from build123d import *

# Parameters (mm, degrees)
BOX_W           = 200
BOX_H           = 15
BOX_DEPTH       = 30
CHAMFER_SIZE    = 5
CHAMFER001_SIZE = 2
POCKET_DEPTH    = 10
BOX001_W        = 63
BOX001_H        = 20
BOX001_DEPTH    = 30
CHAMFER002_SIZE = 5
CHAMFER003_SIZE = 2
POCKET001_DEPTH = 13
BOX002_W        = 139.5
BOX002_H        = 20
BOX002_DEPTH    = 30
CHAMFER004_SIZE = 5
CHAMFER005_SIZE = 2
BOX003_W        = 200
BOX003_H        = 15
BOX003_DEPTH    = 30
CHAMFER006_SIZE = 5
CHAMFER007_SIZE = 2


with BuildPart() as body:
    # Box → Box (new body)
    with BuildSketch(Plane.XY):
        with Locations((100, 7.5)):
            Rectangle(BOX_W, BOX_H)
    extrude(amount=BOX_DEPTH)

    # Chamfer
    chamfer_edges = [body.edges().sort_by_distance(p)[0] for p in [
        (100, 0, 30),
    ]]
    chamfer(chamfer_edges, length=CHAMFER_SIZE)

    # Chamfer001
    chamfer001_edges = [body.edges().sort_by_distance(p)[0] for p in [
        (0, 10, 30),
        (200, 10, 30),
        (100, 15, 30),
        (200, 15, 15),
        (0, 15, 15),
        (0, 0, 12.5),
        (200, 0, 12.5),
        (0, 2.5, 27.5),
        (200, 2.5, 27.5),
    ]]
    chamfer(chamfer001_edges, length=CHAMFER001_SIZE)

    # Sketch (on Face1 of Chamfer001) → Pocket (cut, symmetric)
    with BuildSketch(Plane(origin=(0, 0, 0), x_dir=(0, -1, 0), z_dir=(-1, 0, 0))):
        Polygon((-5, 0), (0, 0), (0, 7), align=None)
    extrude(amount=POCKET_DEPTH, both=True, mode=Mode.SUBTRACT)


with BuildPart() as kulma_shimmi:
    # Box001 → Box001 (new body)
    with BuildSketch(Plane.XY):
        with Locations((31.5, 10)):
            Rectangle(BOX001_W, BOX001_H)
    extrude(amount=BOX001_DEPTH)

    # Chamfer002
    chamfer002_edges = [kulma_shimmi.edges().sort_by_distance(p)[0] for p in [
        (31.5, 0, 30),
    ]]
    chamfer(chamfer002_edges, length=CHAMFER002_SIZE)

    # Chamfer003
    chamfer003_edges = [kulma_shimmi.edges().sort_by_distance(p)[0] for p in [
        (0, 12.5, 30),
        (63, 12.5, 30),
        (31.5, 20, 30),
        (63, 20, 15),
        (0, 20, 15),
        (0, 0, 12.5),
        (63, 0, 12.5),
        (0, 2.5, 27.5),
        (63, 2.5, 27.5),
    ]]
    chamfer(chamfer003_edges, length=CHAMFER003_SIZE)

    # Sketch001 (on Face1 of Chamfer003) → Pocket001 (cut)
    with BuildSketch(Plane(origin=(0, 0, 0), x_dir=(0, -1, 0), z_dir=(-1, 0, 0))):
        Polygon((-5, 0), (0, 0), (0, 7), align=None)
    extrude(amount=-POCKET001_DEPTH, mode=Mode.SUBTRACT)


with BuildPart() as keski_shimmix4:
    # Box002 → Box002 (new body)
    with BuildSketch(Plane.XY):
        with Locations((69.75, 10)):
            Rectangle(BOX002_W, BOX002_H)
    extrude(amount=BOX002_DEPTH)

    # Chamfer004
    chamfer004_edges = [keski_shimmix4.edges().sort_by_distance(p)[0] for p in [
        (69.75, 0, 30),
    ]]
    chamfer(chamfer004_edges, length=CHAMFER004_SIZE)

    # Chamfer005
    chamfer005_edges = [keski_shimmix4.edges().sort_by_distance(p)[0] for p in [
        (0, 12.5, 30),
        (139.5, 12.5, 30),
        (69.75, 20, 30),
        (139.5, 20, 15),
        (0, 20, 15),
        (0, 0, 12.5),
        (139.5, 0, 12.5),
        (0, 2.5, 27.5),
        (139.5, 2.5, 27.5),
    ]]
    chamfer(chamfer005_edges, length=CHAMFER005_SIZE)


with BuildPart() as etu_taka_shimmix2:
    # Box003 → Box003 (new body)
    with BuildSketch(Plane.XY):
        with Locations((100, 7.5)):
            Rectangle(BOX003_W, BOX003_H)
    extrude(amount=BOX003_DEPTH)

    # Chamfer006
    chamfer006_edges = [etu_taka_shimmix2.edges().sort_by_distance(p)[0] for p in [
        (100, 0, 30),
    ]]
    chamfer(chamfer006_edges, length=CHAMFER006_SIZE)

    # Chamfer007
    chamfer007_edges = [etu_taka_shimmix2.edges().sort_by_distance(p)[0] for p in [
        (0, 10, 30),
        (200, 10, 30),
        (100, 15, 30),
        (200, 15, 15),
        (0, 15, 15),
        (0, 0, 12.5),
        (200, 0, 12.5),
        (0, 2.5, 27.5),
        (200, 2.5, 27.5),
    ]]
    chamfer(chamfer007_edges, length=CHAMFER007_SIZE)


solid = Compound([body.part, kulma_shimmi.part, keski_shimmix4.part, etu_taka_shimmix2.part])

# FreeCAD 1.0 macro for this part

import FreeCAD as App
import Part
import Sketcher
Q = App.Units.Quantity


def edges_at(feature, points):
    """Names of the edges that pass closest to the given points."""
    edges = feature.Shape.Edges
    near = lambda p: min(range(len(edges)), key=lambda i: edges[i].distToShape(Part.Vertex(*p))[0])
    return sorted({f"Edge{near(p) + 1}" for p in points})


def add_polygon(sketch, points):
    """Adds a closed chain of lines whose ends are joined by coincident constraints."""
    first, n = sketch.GeometryCount, len(points)
    for a, b in zip(points, points[1:] + points[:1]):
        sketch.addGeometry(Part.LineSegment(App.Vector(*a, 0), App.Vector(*b, 0)), False)
    for i in range(n):
        sketch.addConstraint(Sketcher.Constraint("Coincident", first + i, 2, first + (i + 1) % n, 1))

doc = App.newDocument("Part")
params = doc.addObject("Spreadsheet::Sheet", "Params")
for row, (alias, value) in enumerate([
    ("sketch1_width", "200 mm"),
    ("sketch1_height", "15 mm"),
    ("pad1_length", "30 mm"),
    ("chamfer_size", "5 mm"),
    ("chamfer2_size", "2 mm"),
    ("sketch2_width", "5 mm"),
    ("sketch2_height", "7 mm"),
    ("pocket1_length", "20 mm"),
    ("sketch3_width", "63 mm"),
    ("sketch3_height", "20 mm"),
    ("pad2_length", "30 mm"),
    ("chamfer3_size", "5 mm"),
    ("chamfer4_size", "2 mm"),
    ("sketch4_width", "5 mm"),
    ("sketch4_height", "7 mm"),
    ("pocket2_length", "13 mm"),
    ("sketch5_height", "20 mm"),
    ("sketch5_width", "139.5 mm"),
    ("pad3_length", "30 mm"),
    ("chamfer5_size", "5 mm"),
    ("chamfer6_size", "2 mm"),
    ("sketch6_width", "200 mm"),
    ("sketch6_height", "15 mm"),
    ("pad4_length", "30 mm"),
    ("chamfer7_size", "5 mm"),
    ("chamfer8_size", "2 mm"),
], start=1):
    params.set(f"A{row}", alias)
    params.set(f"B{row}", "=" + value)
    params.setAlias(f"B{row}", alias)

body = doc.addObject("PartDesign::Body", "Body")

# Sketch on XY plane
sketch1 = body.newObject("Sketcher::SketchObject", "Sketch")
sketch1.AttachmentSupport = (doc.getObject("XY_Plane"), [""])
sketch1.MapMode = "FlatFace"
add_polygon(sketch1, [(0, 15), (0, 0), (200, 0), (200, 15)])  # lines 0-3
sketch1.addConstraint(Sketcher.Constraint("Vertical", 0))
sketch1.addConstraint(Sketcher.Constraint("Horizontal", 1))
sketch1.addConstraint(Sketcher.Constraint("Vertical", 2))
sketch1.addConstraint(Sketcher.Constraint("Horizontal", 3))
sketch1.addConstraint(Sketcher.Constraint("Coincident", 0, 2, -1, 1))
sketch1.addConstraint(Sketcher.Constraint("DistanceX", 1, 1, 1, 2, Q("200 mm")))
sketch1.addConstraint(Sketcher.Constraint("DistanceY", 0, 2, 0, 1, Q("15 mm")))
sketch1.setExpression("Constraints[9]", "Params.sketch1_width")
sketch1.setExpression("Constraints[10]", "Params.sketch1_height")
pad1 = body.newObject("PartDesign::Pad", "Pad")
pad1.Profile = sketch1
pad1.setExpression("Length", "Params.pad1_length")
doc.recompute()

chamfer = body.newObject("PartDesign::Chamfer", "Chamfer")
chamfer.Base = (pad1, edges_at(pad1, [(100, 0, 30)]))
chamfer.setExpression("Size", "Params.chamfer_size")
doc.recompute()

chamfer2 = body.newObject("PartDesign::Chamfer", "Chamfer001")
chamfer2.Base = (chamfer, edges_at(chamfer, [
    (0, 10, 30),
    (200, 10, 30),
    (100, 15, 30),
    (200, 15, 15),
    (0, 15, 15),
    (0, 0, 12.5),
    (200, 0, 12.5),
    (0, 2.5, 27.5),
    (200, 2.5, 27.5),
]))
chamfer2.setExpression("Size", "Params.chamfer2_size")

# Sketch on YZ plane
sketch2 = body.newObject("Sketcher::SketchObject", "Sketch001")
sketch2.AttachmentSupport = (doc.getObject("YZ_Plane"), [""])
sketch2.MapMode = "FlatFace"
add_polygon(sketch2, [(5, 0), (0, 0), (0, 7)])  # lines 0-2
sketch2.addConstraint(Sketcher.Constraint("Horizontal", 0))
sketch2.addConstraint(Sketcher.Constraint("Vertical", 1))
sketch2.addConstraint(Sketcher.Constraint("Coincident", 0, 2, -1, 1))
sketch2.addConstraint(Sketcher.Constraint("DistanceX", 0, 2, 0, 1, Q("5 mm")))
sketch2.addConstraint(Sketcher.Constraint("DistanceY", 1, 1, 1, 2, Q("7 mm")))
sketch2.setExpression("Constraints[6]", "Params.sketch2_width")
sketch2.setExpression("Constraints[7]", "Params.sketch2_height")
pocket1 = body.newObject("PartDesign::Pocket", "Pocket")
pocket1.Profile = sketch2
pocket1.setExpression("Length", "Params.pocket1_length")
pocket1.Midplane = True
body2 = doc.addObject("PartDesign::Body", "Body001")

# Sketch on XY plane
sketch3 = body2.newObject("Sketcher::SketchObject", "Sketch002")
sketch3.AttachmentSupport = (doc.getObject("XY_Plane001"), [""])
sketch3.MapMode = "FlatFace"
add_polygon(sketch3, [(0, 20), (0, 0), (63, 0), (63, 20)])  # lines 0-3
sketch3.addConstraint(Sketcher.Constraint("Vertical", 0))
sketch3.addConstraint(Sketcher.Constraint("Horizontal", 1))
sketch3.addConstraint(Sketcher.Constraint("Vertical", 2))
sketch3.addConstraint(Sketcher.Constraint("Horizontal", 3))
sketch3.addConstraint(Sketcher.Constraint("Coincident", 0, 2, -1, 1))
sketch3.addConstraint(Sketcher.Constraint("DistanceX", 1, 1, 1, 2, Q("63 mm")))
sketch3.addConstraint(Sketcher.Constraint("DistanceY", 0, 2, 0, 1, Q("20 mm")))
sketch3.setExpression("Constraints[9]", "Params.sketch3_width")
sketch3.setExpression("Constraints[10]", "Params.sketch3_height")
pad2 = body2.newObject("PartDesign::Pad", "Pad001")
pad2.Profile = sketch3
pad2.setExpression("Length", "Params.pad2_length")
doc.recompute()

chamfer3 = body2.newObject("PartDesign::Chamfer", "Chamfer002")
chamfer3.Base = (pad2, edges_at(pad2, [(31.5, 0, 30)]))
chamfer3.setExpression("Size", "Params.chamfer3_size")
doc.recompute()

chamfer4 = body2.newObject("PartDesign::Chamfer", "Chamfer003")
chamfer4.Base = (chamfer3, edges_at(chamfer3, [
    (0, 12.5, 30),
    (63, 12.5, 30),
    (31.5, 20, 30),
    (63, 20, 15),
    (0, 20, 15),
    (0, 0, 12.5),
    (63, 0, 12.5),
    (0, 2.5, 27.5),
    (63, 2.5, 27.5),
]))
chamfer4.setExpression("Size", "Params.chamfer4_size")

# Sketch on YZ plane
sketch4 = body2.newObject("Sketcher::SketchObject", "Sketch003")
sketch4.AttachmentSupport = (doc.getObject("YZ_Plane001"), [""])
sketch4.MapMode = "FlatFace"
add_polygon(sketch4, [(5, 0), (0, 0), (0, 7)])  # lines 0-2
sketch4.addConstraint(Sketcher.Constraint("Horizontal", 0))
sketch4.addConstraint(Sketcher.Constraint("Vertical", 1))
sketch4.addConstraint(Sketcher.Constraint("Coincident", 0, 2, -1, 1))
sketch4.addConstraint(Sketcher.Constraint("DistanceX", 0, 2, 0, 1, Q("5 mm")))
sketch4.addConstraint(Sketcher.Constraint("DistanceY", 1, 1, 1, 2, Q("7 mm")))
sketch4.setExpression("Constraints[6]", "Params.sketch4_width")
sketch4.setExpression("Constraints[7]", "Params.sketch4_height")
pocket2 = body2.newObject("PartDesign::Pocket", "Pocket001")
pocket2.Profile = sketch4
pocket2.setExpression("Length", "Params.pocket2_length")
pocket2.Reversed = True
body3 = doc.addObject("PartDesign::Body", "Body002")

# Sketch on XY plane
sketch5 = body3.newObject("Sketcher::SketchObject", "Sketch004")
sketch5.AttachmentSupport = (doc.getObject("XY_Plane002"), [""])
sketch5.MapMode = "FlatFace"
add_polygon(sketch5, [(0, 20), (0, 0), (139.5, 0), (139.5, 20)])  # lines 0-3
sketch5.addConstraint(Sketcher.Constraint("Vertical", 0))
sketch5.addConstraint(Sketcher.Constraint("Horizontal", 1))
sketch5.addConstraint(Sketcher.Constraint("Vertical", 2))
sketch5.addConstraint(Sketcher.Constraint("Horizontal", 3))
sketch5.addConstraint(Sketcher.Constraint("Coincident", 0, 2, -1, 1))
sketch5.addConstraint(Sketcher.Constraint("DistanceY", 0, 2, 0, 1, Q("20 mm")))
sketch5.addConstraint(Sketcher.Constraint("DistanceX", 1, 1, 1, 2, Q("139.5 mm")))
sketch5.setExpression("Constraints[9]", "Params.sketch5_height")
sketch5.setExpression("Constraints[10]", "Params.sketch5_width")
pad3 = body3.newObject("PartDesign::Pad", "Pad002")
pad3.Profile = sketch5
pad3.setExpression("Length", "Params.pad3_length")
doc.recompute()

chamfer5 = body3.newObject("PartDesign::Chamfer", "Chamfer004")
chamfer5.Base = (pad3, edges_at(pad3, [(69.75, 0, 30)]))
chamfer5.setExpression("Size", "Params.chamfer5_size")
doc.recompute()

chamfer6 = body3.newObject("PartDesign::Chamfer", "Chamfer005")
chamfer6.Base = (chamfer5, edges_at(chamfer5, [
    (0, 12.5, 30),
    (139.5, 12.5, 30),
    (69.75, 20, 30),
    (139.5, 20, 15),
    (0, 20, 15),
    (0, 0, 12.5),
    (139.5, 0, 12.5),
    (0, 2.5, 27.5),
    (139.5, 2.5, 27.5),
]))
chamfer6.setExpression("Size", "Params.chamfer6_size")
body4 = doc.addObject("PartDesign::Body", "Body003")

# Sketch on XY plane
sketch6 = body4.newObject("Sketcher::SketchObject", "Sketch005")
sketch6.AttachmentSupport = (doc.getObject("XY_Plane003"), [""])
sketch6.MapMode = "FlatFace"
add_polygon(sketch6, [(0, 15), (0, 0), (200, 0), (200, 15)])  # lines 0-3
sketch6.addConstraint(Sketcher.Constraint("Vertical", 0))
sketch6.addConstraint(Sketcher.Constraint("Horizontal", 1))
sketch6.addConstraint(Sketcher.Constraint("Vertical", 2))
sketch6.addConstraint(Sketcher.Constraint("Horizontal", 3))
sketch6.addConstraint(Sketcher.Constraint("Coincident", 0, 2, -1, 1))
sketch6.addConstraint(Sketcher.Constraint("DistanceX", 1, 1, 1, 2, Q("200 mm")))
sketch6.addConstraint(Sketcher.Constraint("DistanceY", 0, 2, 0, 1, Q("15 mm")))
sketch6.setExpression("Constraints[9]", "Params.sketch6_width")
sketch6.setExpression("Constraints[10]", "Params.sketch6_height")
pad4 = body4.newObject("PartDesign::Pad", "Pad003")
pad4.Profile = sketch6
pad4.setExpression("Length", "Params.pad4_length")
doc.recompute()

chamfer7 = body4.newObject("PartDesign::Chamfer", "Chamfer006")
chamfer7.Base = (pad4, edges_at(pad4, [(100, 0, 30)]))
chamfer7.setExpression("Size", "Params.chamfer7_size")
doc.recompute()

chamfer8 = body4.newObject("PartDesign::Chamfer", "Chamfer007")
chamfer8.Base = (chamfer7, edges_at(chamfer7, [
    (0, 10, 30),
    (200, 10, 30),
    (100, 15, 30),
    (200, 15, 15),
    (0, 15, 15),
    (0, 0, 12.5),
    (200, 0, 12.5),
    (0, 2.5, 27.5),
    (200, 2.5, 27.5),
]))
chamfer8.setExpression("Size", "Params.chamfer8_size")

doc.recompute()
